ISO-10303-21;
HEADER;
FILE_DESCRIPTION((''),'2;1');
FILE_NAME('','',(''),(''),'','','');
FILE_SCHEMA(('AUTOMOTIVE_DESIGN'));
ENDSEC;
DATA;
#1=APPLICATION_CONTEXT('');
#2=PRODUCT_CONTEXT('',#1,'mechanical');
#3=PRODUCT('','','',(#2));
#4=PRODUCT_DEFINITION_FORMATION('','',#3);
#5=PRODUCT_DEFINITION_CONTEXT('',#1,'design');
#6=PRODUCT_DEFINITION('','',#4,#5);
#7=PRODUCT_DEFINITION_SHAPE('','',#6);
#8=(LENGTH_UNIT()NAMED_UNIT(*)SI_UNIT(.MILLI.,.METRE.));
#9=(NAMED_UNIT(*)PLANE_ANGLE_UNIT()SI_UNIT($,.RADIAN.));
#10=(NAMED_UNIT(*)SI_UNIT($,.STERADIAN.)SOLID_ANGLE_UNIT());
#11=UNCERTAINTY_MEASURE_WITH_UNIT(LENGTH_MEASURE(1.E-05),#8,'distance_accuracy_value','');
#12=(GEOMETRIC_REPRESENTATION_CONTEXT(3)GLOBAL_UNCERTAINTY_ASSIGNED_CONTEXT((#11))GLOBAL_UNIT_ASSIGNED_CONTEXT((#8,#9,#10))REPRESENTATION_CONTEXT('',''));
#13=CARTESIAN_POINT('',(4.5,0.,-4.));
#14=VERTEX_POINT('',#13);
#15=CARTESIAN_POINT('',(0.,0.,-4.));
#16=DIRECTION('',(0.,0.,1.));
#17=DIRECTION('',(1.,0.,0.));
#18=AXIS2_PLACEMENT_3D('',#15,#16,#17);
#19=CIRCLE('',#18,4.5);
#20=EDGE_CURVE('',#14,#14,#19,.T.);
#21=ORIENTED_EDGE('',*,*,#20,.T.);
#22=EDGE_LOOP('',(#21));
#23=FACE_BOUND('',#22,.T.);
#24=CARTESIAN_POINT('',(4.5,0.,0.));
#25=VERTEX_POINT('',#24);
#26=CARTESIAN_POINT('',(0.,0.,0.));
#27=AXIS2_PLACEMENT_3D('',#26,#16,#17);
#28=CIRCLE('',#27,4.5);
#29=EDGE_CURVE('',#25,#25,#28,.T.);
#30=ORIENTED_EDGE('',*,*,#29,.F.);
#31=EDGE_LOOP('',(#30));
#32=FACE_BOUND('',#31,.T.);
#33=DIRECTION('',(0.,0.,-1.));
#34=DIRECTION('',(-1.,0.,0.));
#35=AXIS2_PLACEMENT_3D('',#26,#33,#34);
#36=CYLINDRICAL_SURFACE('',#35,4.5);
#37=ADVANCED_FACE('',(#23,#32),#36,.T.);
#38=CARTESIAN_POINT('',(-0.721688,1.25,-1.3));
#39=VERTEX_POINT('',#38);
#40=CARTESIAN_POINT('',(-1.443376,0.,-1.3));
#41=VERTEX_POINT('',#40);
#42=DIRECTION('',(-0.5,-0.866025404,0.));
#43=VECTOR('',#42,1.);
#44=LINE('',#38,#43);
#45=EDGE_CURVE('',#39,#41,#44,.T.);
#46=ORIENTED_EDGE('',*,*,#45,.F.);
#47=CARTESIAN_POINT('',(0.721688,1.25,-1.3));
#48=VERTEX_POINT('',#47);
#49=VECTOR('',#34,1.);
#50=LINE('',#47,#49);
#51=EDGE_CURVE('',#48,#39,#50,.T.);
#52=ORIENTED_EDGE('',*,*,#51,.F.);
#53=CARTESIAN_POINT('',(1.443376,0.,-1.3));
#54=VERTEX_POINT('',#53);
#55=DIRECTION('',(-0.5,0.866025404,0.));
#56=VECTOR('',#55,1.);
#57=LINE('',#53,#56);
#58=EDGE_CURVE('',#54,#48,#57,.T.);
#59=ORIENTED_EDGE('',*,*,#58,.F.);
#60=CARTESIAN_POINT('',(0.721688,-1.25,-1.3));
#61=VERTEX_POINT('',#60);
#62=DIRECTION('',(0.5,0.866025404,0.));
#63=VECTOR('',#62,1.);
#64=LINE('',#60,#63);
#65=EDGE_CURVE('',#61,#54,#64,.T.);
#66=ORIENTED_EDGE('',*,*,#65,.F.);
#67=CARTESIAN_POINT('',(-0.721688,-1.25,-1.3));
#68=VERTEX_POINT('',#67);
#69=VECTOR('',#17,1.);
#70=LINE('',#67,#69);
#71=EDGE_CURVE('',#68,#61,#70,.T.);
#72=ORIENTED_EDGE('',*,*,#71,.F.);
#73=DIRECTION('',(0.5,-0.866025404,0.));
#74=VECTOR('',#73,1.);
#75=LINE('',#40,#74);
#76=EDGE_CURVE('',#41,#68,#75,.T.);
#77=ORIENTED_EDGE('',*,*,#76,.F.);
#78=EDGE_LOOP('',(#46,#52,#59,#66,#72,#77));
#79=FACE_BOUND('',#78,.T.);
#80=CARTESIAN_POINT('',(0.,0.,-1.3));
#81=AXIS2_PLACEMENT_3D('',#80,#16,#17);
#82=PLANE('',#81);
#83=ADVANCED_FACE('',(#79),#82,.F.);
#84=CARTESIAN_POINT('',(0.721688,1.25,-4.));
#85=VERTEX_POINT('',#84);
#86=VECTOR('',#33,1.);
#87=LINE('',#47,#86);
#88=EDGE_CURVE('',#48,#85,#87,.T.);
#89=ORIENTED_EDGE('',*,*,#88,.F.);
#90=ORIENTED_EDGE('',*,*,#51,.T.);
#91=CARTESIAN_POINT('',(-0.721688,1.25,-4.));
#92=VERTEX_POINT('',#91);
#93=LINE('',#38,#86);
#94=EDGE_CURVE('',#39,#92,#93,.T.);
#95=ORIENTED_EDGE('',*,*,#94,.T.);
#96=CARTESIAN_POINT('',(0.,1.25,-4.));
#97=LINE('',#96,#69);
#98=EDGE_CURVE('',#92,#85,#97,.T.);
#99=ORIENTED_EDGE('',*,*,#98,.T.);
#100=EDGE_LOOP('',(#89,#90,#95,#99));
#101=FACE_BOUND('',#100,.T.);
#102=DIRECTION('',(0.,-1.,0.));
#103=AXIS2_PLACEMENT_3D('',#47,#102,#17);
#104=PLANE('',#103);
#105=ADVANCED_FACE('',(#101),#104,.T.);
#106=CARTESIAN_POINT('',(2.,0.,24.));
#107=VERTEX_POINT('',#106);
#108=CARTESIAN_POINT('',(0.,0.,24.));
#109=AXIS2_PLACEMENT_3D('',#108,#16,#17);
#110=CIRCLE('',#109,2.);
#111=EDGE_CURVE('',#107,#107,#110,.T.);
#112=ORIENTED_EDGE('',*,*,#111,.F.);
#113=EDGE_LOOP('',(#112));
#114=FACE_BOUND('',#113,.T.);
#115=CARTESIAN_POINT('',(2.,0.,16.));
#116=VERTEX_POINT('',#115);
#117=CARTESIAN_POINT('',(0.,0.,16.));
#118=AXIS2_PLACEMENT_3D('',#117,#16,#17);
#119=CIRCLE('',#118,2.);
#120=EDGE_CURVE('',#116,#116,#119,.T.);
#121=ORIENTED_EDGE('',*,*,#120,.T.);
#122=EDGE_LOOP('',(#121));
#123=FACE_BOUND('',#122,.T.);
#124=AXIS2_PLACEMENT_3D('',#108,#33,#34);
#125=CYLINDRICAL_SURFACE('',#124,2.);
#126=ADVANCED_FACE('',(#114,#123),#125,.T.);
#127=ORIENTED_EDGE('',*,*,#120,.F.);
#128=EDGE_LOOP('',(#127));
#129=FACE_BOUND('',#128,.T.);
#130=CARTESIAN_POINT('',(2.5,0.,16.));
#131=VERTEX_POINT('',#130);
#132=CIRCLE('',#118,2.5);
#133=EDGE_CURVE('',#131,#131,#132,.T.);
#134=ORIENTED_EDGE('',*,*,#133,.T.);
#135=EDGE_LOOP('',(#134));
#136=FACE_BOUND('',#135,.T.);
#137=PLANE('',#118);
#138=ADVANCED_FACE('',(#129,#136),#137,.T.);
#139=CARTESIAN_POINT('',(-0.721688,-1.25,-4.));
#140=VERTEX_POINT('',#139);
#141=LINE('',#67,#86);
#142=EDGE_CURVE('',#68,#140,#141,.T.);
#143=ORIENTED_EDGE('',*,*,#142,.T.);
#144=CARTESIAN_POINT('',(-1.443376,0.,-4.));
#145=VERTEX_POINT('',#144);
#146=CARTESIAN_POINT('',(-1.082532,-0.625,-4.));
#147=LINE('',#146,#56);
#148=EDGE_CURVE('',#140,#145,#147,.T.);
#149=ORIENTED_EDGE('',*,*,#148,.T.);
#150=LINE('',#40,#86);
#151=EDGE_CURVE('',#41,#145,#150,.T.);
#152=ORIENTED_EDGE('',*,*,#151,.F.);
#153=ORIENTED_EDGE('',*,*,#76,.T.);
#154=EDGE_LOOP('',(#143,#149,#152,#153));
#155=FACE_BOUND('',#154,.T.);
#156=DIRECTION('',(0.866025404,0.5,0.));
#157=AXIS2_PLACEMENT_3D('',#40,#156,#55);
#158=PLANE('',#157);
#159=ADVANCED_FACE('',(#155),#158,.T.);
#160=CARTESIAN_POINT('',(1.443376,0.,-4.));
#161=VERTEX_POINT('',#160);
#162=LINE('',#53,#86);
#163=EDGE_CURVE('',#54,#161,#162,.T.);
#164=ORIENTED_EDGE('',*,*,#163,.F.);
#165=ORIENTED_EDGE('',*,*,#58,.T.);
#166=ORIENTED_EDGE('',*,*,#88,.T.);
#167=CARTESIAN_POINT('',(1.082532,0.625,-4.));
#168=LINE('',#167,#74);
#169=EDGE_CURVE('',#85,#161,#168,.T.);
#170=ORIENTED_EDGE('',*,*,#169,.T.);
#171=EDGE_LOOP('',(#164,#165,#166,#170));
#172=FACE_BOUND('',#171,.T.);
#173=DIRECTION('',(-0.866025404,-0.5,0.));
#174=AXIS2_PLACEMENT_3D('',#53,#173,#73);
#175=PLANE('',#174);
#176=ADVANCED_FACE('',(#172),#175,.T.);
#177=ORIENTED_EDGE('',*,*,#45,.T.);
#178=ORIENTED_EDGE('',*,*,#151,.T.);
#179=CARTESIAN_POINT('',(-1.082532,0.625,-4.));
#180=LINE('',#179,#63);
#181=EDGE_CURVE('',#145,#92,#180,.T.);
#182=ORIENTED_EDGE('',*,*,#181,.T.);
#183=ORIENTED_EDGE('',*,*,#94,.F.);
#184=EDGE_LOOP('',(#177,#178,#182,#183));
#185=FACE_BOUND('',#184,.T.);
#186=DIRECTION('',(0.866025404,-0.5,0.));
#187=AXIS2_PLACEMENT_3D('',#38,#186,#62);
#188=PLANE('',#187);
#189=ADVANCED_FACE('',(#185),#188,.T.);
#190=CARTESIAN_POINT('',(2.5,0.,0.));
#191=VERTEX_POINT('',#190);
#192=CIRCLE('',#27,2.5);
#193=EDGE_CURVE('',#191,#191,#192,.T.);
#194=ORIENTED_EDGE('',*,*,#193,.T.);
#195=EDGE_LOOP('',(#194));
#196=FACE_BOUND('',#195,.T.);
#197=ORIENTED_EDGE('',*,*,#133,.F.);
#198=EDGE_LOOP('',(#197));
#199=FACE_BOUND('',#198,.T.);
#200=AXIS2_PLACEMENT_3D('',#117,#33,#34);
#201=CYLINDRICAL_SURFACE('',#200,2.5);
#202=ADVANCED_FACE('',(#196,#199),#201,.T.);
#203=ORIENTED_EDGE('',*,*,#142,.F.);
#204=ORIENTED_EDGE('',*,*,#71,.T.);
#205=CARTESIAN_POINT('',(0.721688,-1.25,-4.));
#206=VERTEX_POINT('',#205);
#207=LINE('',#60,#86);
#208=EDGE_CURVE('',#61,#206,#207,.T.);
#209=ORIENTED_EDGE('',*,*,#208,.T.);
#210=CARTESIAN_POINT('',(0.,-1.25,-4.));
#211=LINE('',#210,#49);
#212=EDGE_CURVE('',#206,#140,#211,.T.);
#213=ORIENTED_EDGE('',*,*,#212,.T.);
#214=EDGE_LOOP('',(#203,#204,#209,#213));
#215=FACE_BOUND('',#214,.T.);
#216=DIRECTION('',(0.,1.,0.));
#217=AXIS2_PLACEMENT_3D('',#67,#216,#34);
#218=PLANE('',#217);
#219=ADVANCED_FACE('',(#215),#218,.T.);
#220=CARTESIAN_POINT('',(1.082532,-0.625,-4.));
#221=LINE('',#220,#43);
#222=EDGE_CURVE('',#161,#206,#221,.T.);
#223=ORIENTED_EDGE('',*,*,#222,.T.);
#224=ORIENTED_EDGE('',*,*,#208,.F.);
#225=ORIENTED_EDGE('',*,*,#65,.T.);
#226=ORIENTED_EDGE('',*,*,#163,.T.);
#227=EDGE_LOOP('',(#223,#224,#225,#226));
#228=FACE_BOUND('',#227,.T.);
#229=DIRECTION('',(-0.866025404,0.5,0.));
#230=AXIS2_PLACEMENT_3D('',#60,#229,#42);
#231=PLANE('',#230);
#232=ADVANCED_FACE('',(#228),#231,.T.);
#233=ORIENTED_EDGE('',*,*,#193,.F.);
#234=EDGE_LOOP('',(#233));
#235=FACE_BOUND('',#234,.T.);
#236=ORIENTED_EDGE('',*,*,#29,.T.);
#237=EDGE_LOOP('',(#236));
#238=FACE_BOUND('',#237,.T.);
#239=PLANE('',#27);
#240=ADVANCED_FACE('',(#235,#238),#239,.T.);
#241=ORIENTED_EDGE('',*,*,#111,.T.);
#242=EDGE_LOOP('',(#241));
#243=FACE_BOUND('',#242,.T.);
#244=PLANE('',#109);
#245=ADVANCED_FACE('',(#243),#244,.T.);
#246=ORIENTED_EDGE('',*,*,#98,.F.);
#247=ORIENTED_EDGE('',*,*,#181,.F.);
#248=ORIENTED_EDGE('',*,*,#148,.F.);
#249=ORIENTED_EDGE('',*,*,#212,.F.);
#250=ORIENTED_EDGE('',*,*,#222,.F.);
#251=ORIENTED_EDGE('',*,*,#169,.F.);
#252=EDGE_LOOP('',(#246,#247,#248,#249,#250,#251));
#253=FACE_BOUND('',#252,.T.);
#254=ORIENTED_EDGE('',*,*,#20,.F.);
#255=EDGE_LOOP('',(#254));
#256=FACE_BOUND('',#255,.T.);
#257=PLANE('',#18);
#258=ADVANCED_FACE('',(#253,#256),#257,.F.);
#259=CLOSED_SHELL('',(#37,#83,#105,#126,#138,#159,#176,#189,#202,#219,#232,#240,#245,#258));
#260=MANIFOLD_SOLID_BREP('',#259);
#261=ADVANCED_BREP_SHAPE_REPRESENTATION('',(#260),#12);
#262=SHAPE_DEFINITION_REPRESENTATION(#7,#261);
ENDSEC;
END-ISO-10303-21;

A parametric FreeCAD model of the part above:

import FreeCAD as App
import Part
import Sketcher
from FreeCAD import Vector
Q = App.Units.Quantity


def add_polygon(sketch, points):
    """Adds a closed chain of lines whose ends are joined by coincident constraints."""
    first, n = sketch.GeometryCount, len(points)
    for a, b in zip(points, points[1:] + points[:1]):
        sketch.addGeometry(Part.LineSegment(App.Vector(*a, 0), App.Vector(*b, 0)), False)
    for i in range(n):
        sketch.addConstraint(Sketcher.Constraint("Coincident", first + i, 2, first + (i + 1) % n, 1))

doc = App.newDocument("Part")
body = doc.addObject("PartDesign::Body", "Body")

# Sketch on XY plane
sketch1 = body.newObject("Sketcher::SketchObject", "Sketch")
sketch1.AttachmentSupport = (doc.getObject("XY_Plane"), [""])
sketch1.MapMode = "FlatFace"
sketch1.addGeometry(Part.Circle(Vector(0, 0, 0), Vector(0, 0, 1), 2.5), False)
sketch1.addConstraint([
    Sketcher.Constraint("Coincident", 0, 3, -1, 1),
    Sketcher.Constraint("Diameter", 0, 5.0),
])
pad1 = body.newObject("PartDesign::Pad", "Pad")
pad1.Profile = sketch1
pad1.Length = 16

# Sketch on XY plane
sketch2 = body.newObject("Sketcher::SketchObject", "Sketch001")
sketch2.AttachmentSupport = (doc.getObject("XY_Plane"), [""])
sketch2.MapMode = "FlatFace"
sketch2.AttachmentOffset = App.Placement(Vector(0, 0, 16), App.Rotation())
sketch2.addGeometry(Part.Circle(Vector(0, 0, 0), Vector(0, 0, 1), 2), False)
sketch2.addConstraint([
    Sketcher.Constraint("Coincident", 0, 3, -1, 1),
    Sketcher.Constraint("Diameter", 0, 4.0),
])
pad2 = body.newObject("PartDesign::Pad", "Pad001")
pad2.Profile = sketch2
pad2.Length = 8

# Sketch on XY plane
sketch3 = body.newObject("Sketcher::SketchObject", "Sketch002")
sketch3.AttachmentSupport = (doc.getObject("XY_Plane"), [""])
sketch3.MapMode = "FlatFace"
sketch3.AttachmentOffset = App.Placement(Vector(0, 0, -4), App.Rotation())
sketch3.addGeometry(Part.Circle(Vector(0, 0, 0), Vector(0, 0, 1), 4.5), False)
sketch3.addConstraint([
    Sketcher.Constraint("Coincident", 0, 3, -1, 1),
    Sketcher.Constraint("Diameter", 0, 9.0),
])
pad3 = body.newObject("PartDesign::Pad", "Pad002")
pad3.Profile = sketch3
pad3.Length = 4

# Sketch on XY plane
sketch4 = body.newObject("Sketcher::SketchObject", "Sketch003")
sketch4.AttachmentSupport = (doc.getObject("XY_Plane"), [""])
sketch4.MapMode = "FlatFace"
sketch4.AttachmentOffset = App.Placement(Vector(0, 0, -4.1), App.Rotation())
add_polygon(sketch4, [(1.4, 0), (0.7, 1.2), (-0.7, 1.2), (-1.4, 0), (-0.7, -1.2), (0.7, -1.2)])  # lines 0-5
sketch4.addConstraint([
    Sketcher.Constraint("Horizontal", 1),
    Sketcher.Constraint("Horizontal", 4),
    Sketcher.Constraint("Symmetric", 0, 2, 3, 2, -1, 1),
    Sketcher.Constraint("Symmetric", 2, 2, 5, 2, -1, 1),
    Sketcher.Constraint("PointOnObject", 2, 2, -1),
    Sketcher.Constraint("Parallel", 2, 5),
    Sketcher.Constraint("Vertical", 1, 2, 3, 2),
    Sketcher.Constraint("Angle", 0, Q("120 deg")),
    Sketcher.Constraint("DistanceY", 3, 2, 1, 2, 2.5),
    Sketcher.Constraint("DistanceX", 1, 2, 1, 1, 1.443376),
])
pocket1 = body.newObject("PartDesign::Pocket", "Pocket")
pocket1.Profile = sketch4
pocket1.Length = 2.8
pocket1.Reversed = True

doc.recompute()
